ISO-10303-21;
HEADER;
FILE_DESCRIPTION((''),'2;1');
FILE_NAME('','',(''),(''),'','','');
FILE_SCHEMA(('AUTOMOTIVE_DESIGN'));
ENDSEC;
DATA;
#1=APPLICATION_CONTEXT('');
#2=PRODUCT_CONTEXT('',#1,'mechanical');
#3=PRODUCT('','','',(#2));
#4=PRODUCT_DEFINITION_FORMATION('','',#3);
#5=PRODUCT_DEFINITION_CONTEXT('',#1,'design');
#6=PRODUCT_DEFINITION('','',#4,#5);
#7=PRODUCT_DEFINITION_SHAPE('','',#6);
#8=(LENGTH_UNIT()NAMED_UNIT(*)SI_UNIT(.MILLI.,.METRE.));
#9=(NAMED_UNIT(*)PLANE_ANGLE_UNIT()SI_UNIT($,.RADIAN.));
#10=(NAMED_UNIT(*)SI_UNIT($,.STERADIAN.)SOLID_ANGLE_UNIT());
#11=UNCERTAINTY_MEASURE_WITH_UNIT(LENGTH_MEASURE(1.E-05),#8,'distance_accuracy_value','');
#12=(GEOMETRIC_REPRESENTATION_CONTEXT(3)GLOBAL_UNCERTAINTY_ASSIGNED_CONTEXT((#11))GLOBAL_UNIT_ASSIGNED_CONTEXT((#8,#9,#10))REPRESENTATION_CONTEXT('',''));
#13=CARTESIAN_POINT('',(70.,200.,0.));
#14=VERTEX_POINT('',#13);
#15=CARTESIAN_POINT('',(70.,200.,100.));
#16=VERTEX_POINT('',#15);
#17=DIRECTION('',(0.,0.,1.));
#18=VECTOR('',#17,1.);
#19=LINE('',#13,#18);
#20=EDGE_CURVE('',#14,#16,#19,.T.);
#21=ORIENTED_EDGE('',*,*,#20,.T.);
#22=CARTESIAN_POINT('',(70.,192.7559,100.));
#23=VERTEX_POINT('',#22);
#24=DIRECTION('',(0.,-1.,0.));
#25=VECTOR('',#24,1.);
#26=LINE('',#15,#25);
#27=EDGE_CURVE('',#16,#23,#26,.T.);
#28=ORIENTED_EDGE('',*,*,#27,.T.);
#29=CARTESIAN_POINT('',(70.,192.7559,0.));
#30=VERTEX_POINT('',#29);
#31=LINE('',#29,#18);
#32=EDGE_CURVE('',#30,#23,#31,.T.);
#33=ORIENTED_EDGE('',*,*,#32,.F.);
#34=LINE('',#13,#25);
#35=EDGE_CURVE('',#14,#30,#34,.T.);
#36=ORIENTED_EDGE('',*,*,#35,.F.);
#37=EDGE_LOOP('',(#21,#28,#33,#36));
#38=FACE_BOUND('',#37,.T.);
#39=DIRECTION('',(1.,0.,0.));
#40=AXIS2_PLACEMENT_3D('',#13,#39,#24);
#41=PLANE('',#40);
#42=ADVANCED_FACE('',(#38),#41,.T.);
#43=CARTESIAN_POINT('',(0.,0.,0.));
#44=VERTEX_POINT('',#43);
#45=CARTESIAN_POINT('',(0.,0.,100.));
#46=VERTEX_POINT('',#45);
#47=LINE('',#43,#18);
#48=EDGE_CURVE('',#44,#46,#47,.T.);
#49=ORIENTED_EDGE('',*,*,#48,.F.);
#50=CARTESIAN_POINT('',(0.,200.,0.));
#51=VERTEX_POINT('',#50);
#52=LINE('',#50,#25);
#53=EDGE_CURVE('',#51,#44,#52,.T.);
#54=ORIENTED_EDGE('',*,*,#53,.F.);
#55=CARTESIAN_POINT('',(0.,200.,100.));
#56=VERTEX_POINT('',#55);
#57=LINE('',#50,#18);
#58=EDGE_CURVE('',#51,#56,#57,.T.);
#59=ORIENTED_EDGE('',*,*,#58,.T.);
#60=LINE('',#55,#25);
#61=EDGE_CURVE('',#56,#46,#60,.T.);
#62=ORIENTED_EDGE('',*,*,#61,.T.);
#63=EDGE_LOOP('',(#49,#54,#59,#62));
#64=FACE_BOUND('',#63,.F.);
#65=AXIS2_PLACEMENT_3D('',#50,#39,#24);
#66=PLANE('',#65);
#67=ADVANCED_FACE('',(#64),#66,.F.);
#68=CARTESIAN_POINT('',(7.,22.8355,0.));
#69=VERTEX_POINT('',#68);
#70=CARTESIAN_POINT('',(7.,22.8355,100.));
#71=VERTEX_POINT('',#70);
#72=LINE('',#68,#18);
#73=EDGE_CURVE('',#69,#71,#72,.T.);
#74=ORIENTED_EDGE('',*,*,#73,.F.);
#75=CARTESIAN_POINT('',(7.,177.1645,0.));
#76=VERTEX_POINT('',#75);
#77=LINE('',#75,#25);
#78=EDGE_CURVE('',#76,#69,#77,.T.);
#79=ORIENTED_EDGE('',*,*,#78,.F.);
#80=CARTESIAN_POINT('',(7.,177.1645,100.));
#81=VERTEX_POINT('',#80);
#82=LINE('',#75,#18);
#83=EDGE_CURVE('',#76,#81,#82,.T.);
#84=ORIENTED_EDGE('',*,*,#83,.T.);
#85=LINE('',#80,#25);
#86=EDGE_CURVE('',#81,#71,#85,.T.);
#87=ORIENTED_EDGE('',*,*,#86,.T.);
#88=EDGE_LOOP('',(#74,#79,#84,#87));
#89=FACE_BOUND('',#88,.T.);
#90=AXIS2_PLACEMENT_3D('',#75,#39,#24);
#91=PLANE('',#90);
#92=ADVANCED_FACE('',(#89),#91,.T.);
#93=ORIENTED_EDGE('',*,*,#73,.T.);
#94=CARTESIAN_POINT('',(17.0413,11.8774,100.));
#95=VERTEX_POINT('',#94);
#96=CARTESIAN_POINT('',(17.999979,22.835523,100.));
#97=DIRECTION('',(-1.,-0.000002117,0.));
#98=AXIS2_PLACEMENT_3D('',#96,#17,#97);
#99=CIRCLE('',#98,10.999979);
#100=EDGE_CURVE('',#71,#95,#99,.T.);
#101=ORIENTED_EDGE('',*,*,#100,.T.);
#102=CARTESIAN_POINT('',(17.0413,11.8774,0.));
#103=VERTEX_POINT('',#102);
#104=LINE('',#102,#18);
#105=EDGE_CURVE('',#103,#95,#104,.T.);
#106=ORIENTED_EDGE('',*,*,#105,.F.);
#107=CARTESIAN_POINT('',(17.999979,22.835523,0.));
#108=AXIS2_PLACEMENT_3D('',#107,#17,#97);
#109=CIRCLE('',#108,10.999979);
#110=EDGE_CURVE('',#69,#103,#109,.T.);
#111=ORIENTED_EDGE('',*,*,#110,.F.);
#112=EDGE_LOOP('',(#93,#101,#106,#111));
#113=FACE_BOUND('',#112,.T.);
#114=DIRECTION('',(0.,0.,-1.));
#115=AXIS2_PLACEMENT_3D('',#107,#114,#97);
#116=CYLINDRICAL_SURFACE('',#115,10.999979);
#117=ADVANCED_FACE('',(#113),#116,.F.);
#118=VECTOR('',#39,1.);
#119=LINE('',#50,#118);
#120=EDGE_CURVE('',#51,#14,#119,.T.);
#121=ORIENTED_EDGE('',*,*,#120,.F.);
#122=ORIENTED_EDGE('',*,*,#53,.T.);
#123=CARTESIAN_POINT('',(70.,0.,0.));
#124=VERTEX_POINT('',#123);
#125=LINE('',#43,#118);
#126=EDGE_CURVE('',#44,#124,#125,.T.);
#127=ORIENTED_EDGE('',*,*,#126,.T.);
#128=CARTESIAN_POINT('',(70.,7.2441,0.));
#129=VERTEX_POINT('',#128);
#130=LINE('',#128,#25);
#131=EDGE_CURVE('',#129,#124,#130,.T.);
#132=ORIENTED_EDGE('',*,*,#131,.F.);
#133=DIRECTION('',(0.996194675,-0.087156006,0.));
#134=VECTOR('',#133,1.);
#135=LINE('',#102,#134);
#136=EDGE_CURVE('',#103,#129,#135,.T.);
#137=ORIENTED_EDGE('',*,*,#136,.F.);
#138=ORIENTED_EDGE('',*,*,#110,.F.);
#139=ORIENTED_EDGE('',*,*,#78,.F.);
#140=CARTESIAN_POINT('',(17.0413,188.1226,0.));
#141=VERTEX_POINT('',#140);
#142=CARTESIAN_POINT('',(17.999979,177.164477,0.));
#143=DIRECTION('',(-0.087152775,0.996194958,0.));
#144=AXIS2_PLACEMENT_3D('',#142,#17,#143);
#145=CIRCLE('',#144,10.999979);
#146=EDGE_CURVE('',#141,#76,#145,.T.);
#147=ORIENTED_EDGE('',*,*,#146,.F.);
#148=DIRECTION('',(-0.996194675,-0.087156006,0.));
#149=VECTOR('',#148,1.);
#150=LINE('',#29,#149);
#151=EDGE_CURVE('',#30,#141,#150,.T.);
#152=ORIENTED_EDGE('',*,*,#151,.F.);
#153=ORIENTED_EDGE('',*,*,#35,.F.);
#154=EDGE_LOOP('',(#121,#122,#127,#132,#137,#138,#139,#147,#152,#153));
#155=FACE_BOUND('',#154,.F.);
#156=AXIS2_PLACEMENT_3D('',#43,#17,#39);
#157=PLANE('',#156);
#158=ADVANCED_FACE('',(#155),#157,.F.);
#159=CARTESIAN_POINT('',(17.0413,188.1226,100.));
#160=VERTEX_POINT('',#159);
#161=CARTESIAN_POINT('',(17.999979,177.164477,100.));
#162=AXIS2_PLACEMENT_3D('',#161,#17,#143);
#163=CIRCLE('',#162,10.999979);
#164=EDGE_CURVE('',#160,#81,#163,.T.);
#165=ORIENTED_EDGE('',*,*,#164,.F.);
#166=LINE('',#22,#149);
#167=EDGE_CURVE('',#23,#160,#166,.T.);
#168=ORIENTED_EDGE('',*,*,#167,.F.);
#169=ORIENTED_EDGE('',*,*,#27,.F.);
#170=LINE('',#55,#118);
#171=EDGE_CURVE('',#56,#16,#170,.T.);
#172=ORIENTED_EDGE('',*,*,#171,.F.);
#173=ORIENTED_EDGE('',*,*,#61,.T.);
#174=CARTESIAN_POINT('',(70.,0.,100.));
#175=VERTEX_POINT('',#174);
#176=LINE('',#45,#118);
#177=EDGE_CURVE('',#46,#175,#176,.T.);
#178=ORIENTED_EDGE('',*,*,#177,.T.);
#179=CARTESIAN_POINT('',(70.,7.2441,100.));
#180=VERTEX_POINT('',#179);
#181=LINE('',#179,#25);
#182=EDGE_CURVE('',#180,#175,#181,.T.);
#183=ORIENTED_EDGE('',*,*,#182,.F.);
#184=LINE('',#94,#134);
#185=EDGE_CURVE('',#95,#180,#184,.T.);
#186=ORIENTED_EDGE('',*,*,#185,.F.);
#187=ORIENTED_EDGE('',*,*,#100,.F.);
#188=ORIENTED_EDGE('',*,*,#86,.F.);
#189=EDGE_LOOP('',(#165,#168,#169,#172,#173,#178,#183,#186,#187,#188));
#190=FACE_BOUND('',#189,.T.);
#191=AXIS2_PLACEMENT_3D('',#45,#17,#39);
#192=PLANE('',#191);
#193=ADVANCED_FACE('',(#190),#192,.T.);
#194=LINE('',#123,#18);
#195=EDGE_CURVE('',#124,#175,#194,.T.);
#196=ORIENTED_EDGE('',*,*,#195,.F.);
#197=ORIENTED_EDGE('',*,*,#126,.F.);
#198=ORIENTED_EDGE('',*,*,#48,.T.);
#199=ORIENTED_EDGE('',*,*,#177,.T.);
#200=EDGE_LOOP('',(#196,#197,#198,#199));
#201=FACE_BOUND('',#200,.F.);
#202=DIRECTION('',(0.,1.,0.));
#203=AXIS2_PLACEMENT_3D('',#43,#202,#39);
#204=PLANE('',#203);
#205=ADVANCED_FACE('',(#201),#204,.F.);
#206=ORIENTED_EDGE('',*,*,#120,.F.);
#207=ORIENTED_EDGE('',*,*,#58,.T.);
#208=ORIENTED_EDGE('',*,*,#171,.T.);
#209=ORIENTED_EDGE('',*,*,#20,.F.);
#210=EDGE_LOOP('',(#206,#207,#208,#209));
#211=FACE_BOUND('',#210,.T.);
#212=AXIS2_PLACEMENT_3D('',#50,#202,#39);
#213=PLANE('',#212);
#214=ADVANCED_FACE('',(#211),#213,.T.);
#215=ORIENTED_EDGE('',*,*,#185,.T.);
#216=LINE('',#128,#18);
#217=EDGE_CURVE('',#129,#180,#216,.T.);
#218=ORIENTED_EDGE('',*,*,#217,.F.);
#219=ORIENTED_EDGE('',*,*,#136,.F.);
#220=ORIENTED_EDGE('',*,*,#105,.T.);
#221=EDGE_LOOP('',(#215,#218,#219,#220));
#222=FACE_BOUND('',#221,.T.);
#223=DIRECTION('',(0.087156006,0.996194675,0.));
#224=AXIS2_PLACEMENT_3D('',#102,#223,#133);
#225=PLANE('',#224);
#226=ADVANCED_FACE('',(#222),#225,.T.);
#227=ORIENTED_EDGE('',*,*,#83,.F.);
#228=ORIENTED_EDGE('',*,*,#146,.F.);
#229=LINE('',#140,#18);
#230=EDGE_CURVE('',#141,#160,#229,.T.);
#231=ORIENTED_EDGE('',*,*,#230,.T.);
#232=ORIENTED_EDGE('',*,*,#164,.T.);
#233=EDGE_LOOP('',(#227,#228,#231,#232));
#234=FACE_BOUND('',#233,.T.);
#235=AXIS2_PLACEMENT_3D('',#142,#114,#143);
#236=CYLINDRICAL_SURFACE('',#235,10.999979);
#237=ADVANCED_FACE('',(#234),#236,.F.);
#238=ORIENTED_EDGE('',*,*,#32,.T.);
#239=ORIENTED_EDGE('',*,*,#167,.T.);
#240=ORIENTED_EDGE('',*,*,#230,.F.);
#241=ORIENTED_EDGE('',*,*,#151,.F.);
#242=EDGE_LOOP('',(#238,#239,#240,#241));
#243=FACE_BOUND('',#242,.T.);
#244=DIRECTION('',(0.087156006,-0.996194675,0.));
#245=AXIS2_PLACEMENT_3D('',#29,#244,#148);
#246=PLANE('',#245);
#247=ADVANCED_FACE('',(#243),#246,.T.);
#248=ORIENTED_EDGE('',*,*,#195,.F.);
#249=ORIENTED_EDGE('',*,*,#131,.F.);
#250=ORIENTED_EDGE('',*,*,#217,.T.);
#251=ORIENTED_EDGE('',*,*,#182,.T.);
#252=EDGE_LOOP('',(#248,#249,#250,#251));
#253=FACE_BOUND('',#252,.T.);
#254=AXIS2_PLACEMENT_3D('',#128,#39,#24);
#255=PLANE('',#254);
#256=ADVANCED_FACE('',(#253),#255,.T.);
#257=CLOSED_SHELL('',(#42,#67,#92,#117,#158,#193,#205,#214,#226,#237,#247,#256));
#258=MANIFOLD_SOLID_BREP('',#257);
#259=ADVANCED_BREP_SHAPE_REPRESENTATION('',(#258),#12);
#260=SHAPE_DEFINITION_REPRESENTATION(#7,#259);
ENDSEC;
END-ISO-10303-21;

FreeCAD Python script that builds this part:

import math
import FreeCAD as App
import Part
import Sketcher
from FreeCAD import Vector
Q = App.Units.Quantity

doc = App.newDocument("Part")
params = doc.addObject("Spreadsheet::Sheet", "Params")
for row, (alias, value) in enumerate([
    ("sketch1_radius", "11 mm"),
    ("sketch1_width", "70 mm"),
    ("sketch1_height", "200 mm"),
    ("pad1_length", "100 mm"),
], start=1):
    params.set(f"A{row}", alias)
    params.set(f"B{row}", "=" + value)
    params.setAlias(f"B{row}", alias)

body = doc.addObject("PartDesign::Body", "Body")

sketch1 = body.newObject("Sketcher::SketchObject", "Sketch")
sketch1.AttachmentSupport = (doc.getObject("XY_Plane"), [""])
sketch1.MapMode = "FlatFace"
sketch1.addGeometry([
    Part.LineSegment(Vector(7, 23, 0), Vector(7, 177, 0)),
    Part.ArcOfCircle(Part.Circle(Vector(18, 177, 0), Vector(0, 0, 1), 11), math.radians(95), math.radians(180)),
    Part.LineSegment(Vector(17, 188, 0), Vector(70, 193, 0)),
    Part.LineSegment(Vector(70, 193, 0), Vector(70, 200, 0)),
    Part.LineSegment(Vector(70, 200, 0), Vector(0, 200, 0)),
    Part.LineSegment(Vector(0, 200, 0), Vector(0, 0, 0)),
    Part.LineSegment(Vector(0, 0, 0), Vector(70, 0, 0)),
    Part.LineSegment(Vector(70, 0, 0), Vector(70, 7, 0)),
    Part.LineSegment(Vector(70, 7, 0), Vector(17, 12, 0)),
    Part.ArcOfCircle(Part.Circle(Vector(18, 23, 0), Vector(0, 0, 1), 11), math.radians(180), math.radians(265)),
], False)
sketch1.addConstraint([
    Sketcher.Constraint("Tangent", 0, 2, 1, 2),
    Sketcher.Constraint("Tangent", 1, 1, 2, 1),
    Sketcher.Constraint("Coincident", 2, 2, 3, 1),
    Sketcher.Constraint("Coincident", 3, 2, 4, 1),
    Sketcher.Constraint("Coincident", 4, 2, 5, 1),
    Sketcher.Constraint("Coincident", 5, 2, 6, 1),
    Sketcher.Constraint("Coincident", 6, 2, 7, 1),
    Sketcher.Constraint("Coincident", 7, 2, 8, 1),
    Sketcher.Constraint("Tangent", 8, 2, 9, 2),
    Sketcher.Constraint("Tangent", 9, 1, 0, 1),
    Sketcher.Constraint("Vertical", 0),
    Sketcher.Constraint("Vertical", 3),
    Sketcher.Constraint("Horizontal", 4),
    Sketcher.Constraint("Vertical", 5),
    Sketcher.Constraint("Horizontal", 6),
    Sketcher.Constraint("Vertical", 7),
    Sketcher.Constraint("Coincident", 5, 2, -1, 1),
    Sketcher.Constraint("Equal", 1, 9),
    Sketcher.Constraint("Vertical", 3, 2, 6, 2),
    Sketcher.Constraint("Vertical", 1, 1, 8, 2),
    Sketcher.Constraint("Equal", 3, 7),
    Sketcher.Constraint("Radius", 1, 11.0),
    Sketcher.Constraint("DistanceX", 4, 2, 4, 1, 70.0),
    Sketcher.Constraint("DistanceY", 5, 2, 5, 1, 200.0),
    Sketcher.Constraint("Angle", 2, Q("5 deg")),
    Sketcher.Constraint("DistanceX", -1, 1, 1, 3, 18.0),
    Sketcher.Constraint("DistanceY", 0, 1, 0, 2, 154.329),
])
sketch1.setExpression("Constraints[21]", "Params.sketch1_radius")
sketch1.setExpression("Constraints[22]", "Params.sketch1_width")
sketch1.setExpression("Constraints[23]", "Params.sketch1_height")
pad1 = body.newObject("PartDesign::Pad", "Pad")
pad1.Profile = sketch1
pad1.setExpression("Length", "Params.pad1_length")

doc.recompute()
